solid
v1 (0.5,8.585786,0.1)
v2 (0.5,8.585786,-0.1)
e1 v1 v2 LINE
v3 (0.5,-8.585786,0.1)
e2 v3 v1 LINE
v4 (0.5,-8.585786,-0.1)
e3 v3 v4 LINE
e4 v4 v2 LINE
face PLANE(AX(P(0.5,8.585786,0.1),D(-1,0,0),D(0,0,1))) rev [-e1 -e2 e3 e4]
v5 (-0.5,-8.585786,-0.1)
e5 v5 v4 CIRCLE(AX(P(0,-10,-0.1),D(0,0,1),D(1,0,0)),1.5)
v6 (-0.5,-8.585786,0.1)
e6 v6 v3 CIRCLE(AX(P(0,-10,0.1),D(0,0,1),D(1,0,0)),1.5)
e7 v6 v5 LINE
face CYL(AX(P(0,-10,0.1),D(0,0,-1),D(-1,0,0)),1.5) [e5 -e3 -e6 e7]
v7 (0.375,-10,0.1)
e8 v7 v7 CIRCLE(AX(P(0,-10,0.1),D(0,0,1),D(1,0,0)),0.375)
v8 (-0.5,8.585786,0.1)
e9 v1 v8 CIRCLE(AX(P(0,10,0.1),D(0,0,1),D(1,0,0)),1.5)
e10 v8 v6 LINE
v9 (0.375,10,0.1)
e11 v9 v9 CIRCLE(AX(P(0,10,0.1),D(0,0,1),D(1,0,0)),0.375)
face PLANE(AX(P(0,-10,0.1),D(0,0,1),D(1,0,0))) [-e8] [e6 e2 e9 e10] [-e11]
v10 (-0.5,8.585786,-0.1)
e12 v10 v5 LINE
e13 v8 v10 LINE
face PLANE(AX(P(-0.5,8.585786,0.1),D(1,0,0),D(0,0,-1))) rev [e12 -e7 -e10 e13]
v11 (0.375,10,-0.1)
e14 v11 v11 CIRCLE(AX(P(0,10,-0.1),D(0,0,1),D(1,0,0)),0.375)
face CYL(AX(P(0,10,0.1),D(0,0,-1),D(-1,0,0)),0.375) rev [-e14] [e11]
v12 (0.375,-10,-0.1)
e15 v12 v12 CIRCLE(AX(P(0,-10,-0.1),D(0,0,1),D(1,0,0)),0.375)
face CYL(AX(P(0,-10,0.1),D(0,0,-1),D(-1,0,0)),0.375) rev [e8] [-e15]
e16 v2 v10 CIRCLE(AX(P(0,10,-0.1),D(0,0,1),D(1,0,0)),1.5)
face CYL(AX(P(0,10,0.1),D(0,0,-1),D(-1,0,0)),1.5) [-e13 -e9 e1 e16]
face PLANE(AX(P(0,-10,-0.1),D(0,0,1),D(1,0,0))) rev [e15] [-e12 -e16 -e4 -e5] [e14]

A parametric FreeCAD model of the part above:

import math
import FreeCAD as App
import Part
import Sketcher
Q = App.Units.Quantity

doc = App.newDocument("Part")
body = doc.addObject("PartDesign::Body", "Body")

# Sketch on XY plane
sketch1 = body.newObject("Sketcher::SketchObject", "Sketch")
sketch1.AttachmentSupport = (doc.getObject("XY_Plane"), [""])
sketch1.MapMode = "FlatFace"
sketch1.addGeometry(Part.LineSegment(App.Vector(-0.5, 8.585786, 0), App.Vector(-0.5, -8.585786, 0)), False)
sketch1.addGeometry(Part.ArcOfCircle(Part.Circle(App.Vector(0, -10, 0), App.Vector(0, 0, 1), 1.5), math.radians(109.471221), math.radians(430.528779)), False)
sketch1.addGeometry(Part.LineSegment(App.Vector(0.5, -8.585786, 0), App.Vector(0.5, 8.585786, 0)), False)
sketch1.addGeometry(Part.ArcOfCircle(Part.Circle(App.Vector(0, 10, 0), App.Vector(0, 0, 1), 1.5), math.radians(-70.528779), math.radians(250.528779)), False)
sketch1.addGeometry(Part.Circle(App.Vector(0, -10, 0), App.Vector(0, 0, 1), 0.375), False)
sketch1.addGeometry(Part.Circle(App.Vector(0, 10, 0), App.Vector(0, 0, 1), 0.375), False)
sketch1.addConstraint(Sketcher.Constraint("Coincident", 0, 2, 1, 1))
sketch1.addConstraint(Sketcher.Constraint("Coincident", 1, 2, 2, 1))
sketch1.addConstraint(Sketcher.Constraint("Coincident", 2, 2, 3, 1))
sketch1.addConstraint(Sketcher.Constraint("Coincident", 3, 2, 0, 1))
sketch1.addConstraint(Sketcher.Constraint("Vertical", 0))
sketch1.addConstraint(Sketcher.Constraint("Vertical", 2))
sketch1.addConstraint(Sketcher.Constraint("Coincident", 4, 3, 1, 3))
sketch1.addConstraint(Sketcher.Constraint("Coincident", 5, 3, 3, 3))
sketch1.addConstraint(Sketcher.Constraint("Equal", 1, 3))
sketch1.addConstraint(Sketcher.Constraint("Equal", 4, 5))
sketch1.addConstraint(Sketcher.Constraint("Symmetric", 1, 3, 3, 3, -1, 1))
sketch1.addConstraint(Sketcher.Constraint("Symmetric", 0, 2, 1, 2, -2))
sketch1.addConstraint(Sketcher.Constraint("Radius", 1, Q("1.5 mm")))
sketch1.addConstraint(Sketcher.Constraint("Diameter", 4, Q("0.75 mm")))
sketch1.addConstraint(Sketcher.Constraint("DistanceY", 1, 3, -1, 1, Q("10 mm")))
sketch1.addConstraint(Sketcher.Constraint("DistanceX", 0, 2, 1, 2, Q("1 mm")))
pad1 = body.newObject("PartDesign::Pad", "Pad")
pad1.Profile = sketch1
pad1.Length = 0.2
pad1.Midplane = True

doc.recompute()
